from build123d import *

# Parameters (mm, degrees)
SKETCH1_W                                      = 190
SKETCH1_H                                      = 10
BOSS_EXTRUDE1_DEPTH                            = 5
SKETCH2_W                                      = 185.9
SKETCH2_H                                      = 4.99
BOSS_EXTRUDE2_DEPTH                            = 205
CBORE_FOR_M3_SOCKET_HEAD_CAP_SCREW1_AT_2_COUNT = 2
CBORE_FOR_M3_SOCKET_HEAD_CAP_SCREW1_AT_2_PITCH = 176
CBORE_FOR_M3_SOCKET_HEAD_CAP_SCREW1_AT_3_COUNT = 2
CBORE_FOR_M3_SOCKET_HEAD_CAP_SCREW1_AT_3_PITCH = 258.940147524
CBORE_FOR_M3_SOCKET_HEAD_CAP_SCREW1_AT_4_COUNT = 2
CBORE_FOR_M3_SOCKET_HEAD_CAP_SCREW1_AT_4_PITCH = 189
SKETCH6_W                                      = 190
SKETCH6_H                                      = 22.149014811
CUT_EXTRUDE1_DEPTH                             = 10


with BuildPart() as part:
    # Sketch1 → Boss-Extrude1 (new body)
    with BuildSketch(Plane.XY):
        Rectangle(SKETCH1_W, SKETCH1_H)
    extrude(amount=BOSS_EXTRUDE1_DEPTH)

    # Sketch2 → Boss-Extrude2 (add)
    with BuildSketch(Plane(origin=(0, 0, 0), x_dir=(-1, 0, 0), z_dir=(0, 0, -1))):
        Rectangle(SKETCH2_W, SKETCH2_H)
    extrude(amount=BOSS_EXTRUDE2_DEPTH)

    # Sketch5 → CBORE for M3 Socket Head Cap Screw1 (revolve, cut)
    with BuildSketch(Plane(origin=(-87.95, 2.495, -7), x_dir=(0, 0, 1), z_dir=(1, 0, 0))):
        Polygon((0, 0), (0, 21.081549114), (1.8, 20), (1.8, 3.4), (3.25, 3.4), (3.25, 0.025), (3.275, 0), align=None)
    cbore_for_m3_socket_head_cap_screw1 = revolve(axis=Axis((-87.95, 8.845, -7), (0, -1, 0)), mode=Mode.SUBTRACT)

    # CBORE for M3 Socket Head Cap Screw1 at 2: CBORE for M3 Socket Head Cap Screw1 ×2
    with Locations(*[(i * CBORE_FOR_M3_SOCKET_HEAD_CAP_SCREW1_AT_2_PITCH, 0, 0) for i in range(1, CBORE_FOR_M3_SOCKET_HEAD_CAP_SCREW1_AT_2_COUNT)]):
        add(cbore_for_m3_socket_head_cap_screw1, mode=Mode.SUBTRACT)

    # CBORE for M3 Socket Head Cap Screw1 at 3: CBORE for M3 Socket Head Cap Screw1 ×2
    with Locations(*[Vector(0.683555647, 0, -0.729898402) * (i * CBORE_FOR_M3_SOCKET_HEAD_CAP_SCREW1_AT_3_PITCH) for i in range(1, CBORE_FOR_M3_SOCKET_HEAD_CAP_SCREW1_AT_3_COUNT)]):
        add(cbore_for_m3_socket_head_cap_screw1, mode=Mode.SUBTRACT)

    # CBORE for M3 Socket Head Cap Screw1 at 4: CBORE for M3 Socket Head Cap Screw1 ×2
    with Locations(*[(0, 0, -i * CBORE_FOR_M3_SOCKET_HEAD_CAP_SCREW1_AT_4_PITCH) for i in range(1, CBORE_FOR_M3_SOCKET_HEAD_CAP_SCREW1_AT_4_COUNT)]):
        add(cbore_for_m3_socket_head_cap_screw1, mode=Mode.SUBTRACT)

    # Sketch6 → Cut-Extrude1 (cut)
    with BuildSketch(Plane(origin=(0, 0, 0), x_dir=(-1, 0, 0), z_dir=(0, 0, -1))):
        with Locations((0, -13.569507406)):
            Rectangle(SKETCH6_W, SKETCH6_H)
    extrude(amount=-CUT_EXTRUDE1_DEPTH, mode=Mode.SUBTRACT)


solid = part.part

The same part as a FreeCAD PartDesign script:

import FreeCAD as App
import Part
import Sketcher
from FreeCAD import Vector
Q = App.Units.Quantity

doc = App.newDocument("Part")
body = doc.addObject("PartDesign::Body", "Body")

# Sketch on XY plane
sketch1 = body.newObject("Sketcher::SketchObject", "Sketch")
sketch1.AttachmentSupport = (doc.getObject("XY_Plane"), [""])
sketch1.MapMode = "FlatFace"
sketch1.addGeometry([
    Part.LineSegment(Vector(-95, 5, 0), Vector(-95, -5, 0)),
    Part.LineSegment(Vector(-95, -5, 0), Vector(95, -5, 0)),
    Part.LineSegment(Vector(95, -5, 0), Vector(95, 5, 0)),
    Part.LineSegment(Vector(95, 5, 0), Vector(-95, 5, 0)),
], False)
sketch1.addConstraint([
    Sketcher.Constraint("Coincident", 0, 2, 1, 1),
    Sketcher.Constraint("Coincident", 1, 2, 2, 1),
    Sketcher.Constraint("Coincident", 2, 2, 3, 1),
    Sketcher.Constraint("Coincident", 3, 2, 0, 1),
    Sketcher.Constraint("Vertical", 0),
    Sketcher.Constraint("Horizontal", 1),
    Sketcher.Constraint("Vertical", 2),
    Sketcher.Constraint("Horizontal", 3),
    Sketcher.Constraint("Symmetric", 0, 2, 2, 2, -1, 1),
    Sketcher.Constraint("DistanceX", 1, 1, 1, 2, Q("190 mm")),
    Sketcher.Constraint("DistanceY", 0, 2, 0, 1, Q("10 mm")),
])
pad1 = body.newObject("PartDesign::Pad", "Pad")
pad1.Profile = sketch1
pad1.Length = 5

# Sketch on XY plane
sketch2 = body.newObject("Sketcher::SketchObject", "Sketch001")
sketch2.AttachmentSupport = (doc.getObject("XY_Plane"), [""])
sketch2.MapMode = "FlatFace"
sketch2.addGeometry([
    Part.LineSegment(Vector(93, 2.5, 0), Vector(93, -2.5, 0)),
    Part.LineSegment(Vector(93, -2.5, 0), Vector(-93, -2.5, 0)),
    Part.LineSegment(Vector(-93, -2.5, 0), Vector(-93, 2.5, 0)),
    Part.LineSegment(Vector(-93, 2.5, 0), Vector(93, 2.5, 0)),
], False)
sketch2.addConstraint([
    Sketcher.Constraint("Coincident", 0, 2, 1, 1),
    Sketcher.Constraint("Coincident", 1, 2, 2, 1),
    Sketcher.Constraint("Coincident", 2, 2, 3, 1),
    Sketcher.Constraint("Coincident", 3, 2, 0, 1),
    Sketcher.Constraint("Vertical", 0),
    Sketcher.Constraint("Horizontal", 1),
    Sketcher.Constraint("Vertical", 2),
    Sketcher.Constraint("Horizontal", 3),
    Sketcher.Constraint("Symmetric", 0, 2, 2, 2, -1, 1),
    Sketcher.Constraint("DistanceX", 1, 2, 1, 1, Q("185.9 mm")),
    Sketcher.Constraint("DistanceY", 0, 2, 0, 1, Q("4.99 mm")),
])
pad2 = body.newObject("PartDesign::Pad", "Pad001")
pad2.Profile = sketch2
pad2.Length = 205
pad2.Reversed = True

# Sketch on YZ plane
sketch3 = body.newObject("Sketcher::SketchObject", "Sketch002")
sketch3.AttachmentSupport = (doc.getObject("YZ_Plane"), [""])
sketch3.MapMode = "FlatFace"
sketch3.AttachmentOffset = App.Placement(Vector(0, 0, -87.95), App.Rotation())
sketch3.addGeometry([
    Part.LineSegment(Vector(-18.587, -7, 0), Vector(2.495, -7, 0)),  # 0
    Part.LineSegment(Vector(2.495, -7, 0), Vector(2.495, -3.725, 0)),  # 1
    Part.LineSegment(Vector(2.495, -3.725, 0), Vector(2.47, -3.75, 0)),  # 2
    Part.LineSegment(Vector(2.47, -3.75, 0), Vector(-0.905, -3.75, 0)),  # 3
    Part.LineSegment(Vector(-0.905, -3.75, 0), Vector(-0.905, -5.2, 0)),  # 4
    Part.LineSegment(Vector(-0.905, -5.2, 0), Vector(-17.505, -5.2, 0)),  # 5
    Part.LineSegment(Vector(-17.505, -5.2, 0), Vector(-18.587, -7, 0)),  # 6
], False)
sketch3.addGeometry(Part.LineSegment(Vector(2.495, -7, 0), Vector(-18.587, -7, 0)), True)  # axis
sketch3.addConstraint([
    Sketcher.Constraint("Coincident", 0, 2, 1, 1),
    Sketcher.Constraint("Coincident", 1, 2, 2, 1),
    Sketcher.Constraint("Coincident", 2, 2, 3, 1),
    Sketcher.Constraint("Coincident", 3, 2, 4, 1),
    Sketcher.Constraint("Coincident", 4, 2, 5, 1),
    Sketcher.Constraint("Coincident", 5, 2, 6, 1),
    Sketcher.Constraint("Coincident", 6, 2, 0, 1),
    Sketcher.Constraint("Horizontal", 0),
    Sketcher.Constraint("Vertical", 1),
    Sketcher.Constraint("Horizontal", 3),
    Sketcher.Constraint("Vertical", 4),
    Sketcher.Constraint("Horizontal", 5),
    Sketcher.Constraint("Horizontal", 7),
    Sketcher.Constraint("Coincident", 7, 1, 0, 2),
    Sketcher.Constraint("Equal", 0, 7),
    Sketcher.Constraint("Angle", 2, Q("-135 deg")),
    Sketcher.Constraint("Angle", 6, Q("-121 deg")),
    Sketcher.Constraint("DistanceX", 5, 2, 5, 1, Q("16.6 mm")),
    Sketcher.Constraint("DistanceY", 0, 2, -1, 1, Q("7 mm")),
    Sketcher.Constraint("DistanceX", 5, 2, 1, 2, Q("20 mm")),
    Sketcher.Constraint("DistanceY", 4, 2, 4, 1, Q("1.45 mm")),
    Sketcher.Constraint("DistanceY", 4, 2, -1, 1, Q("5.2 mm")),
    Sketcher.Constraint("DistanceX", 3, 2, 3, 1, Q("3.375 mm")),
    Sketcher.Constraint("DistanceX", -1, 1, 2, 2, Q("2.47 mm")),
])
groove = body.newObject("PartDesign::Groove", "Groove")
groove.Profile = sketch3
groove.ReferenceAxis = (sketch3, ["Axis0"])
groove.Angle = 360
doc.recompute()

linearpattern = body.newObject("PartDesign::LinearPattern", "LinearPattern")
linearpattern.Originals = [groove]
linearpattern.Direction = (doc.getObject("X_Axis"), [""])
linearpattern.Mode = "offset"
linearpattern.Offset = 176
linearpattern.Occurrences = 2
body.Tip = linearpattern
doc.recompute()

datumline = body.newObject("PartDesign::Line", "DatumLine")
datumline.Placement = App.Placement(Vector(0, 0, 0), App.Rotation(Vector(0, 0, 1), Vector(0.683555647, 0, -0.729898402)))
linearpattern2 = body.newObject("PartDesign::LinearPattern", "LinearPattern001")
linearpattern2.Originals = [groove]
linearpattern2.Direction = (datumline, [""])
linearpattern2.Mode = "offset"
linearpattern2.Offset = 258.940147
linearpattern2.Occurrences = 2
body.Tip = linearpattern2
doc.recompute()

linearpattern3 = body.newObject("PartDesign::LinearPattern", "LinearPattern002")
linearpattern3.Originals = [groove]
linearpattern3.Direction = (doc.getObject("Z_Axis"), [""])
linearpattern3.Mode = "offset"
linearpattern3.Offset = 189
linearpattern3.Occurrences = 2
linearpattern3.Reversed = True
body.Tip = linearpattern3

# Sketch on XY plane
sketch4 = body.newObject("Sketcher::SketchObject", "Sketch003")
sketch4.AttachmentSupport = (doc.getObject("XY_Plane"), [""])
sketch4.MapMode = "FlatFace"
sketch4.addGeometry([
    Part.LineSegment(Vector(95, -2, 0), Vector(95, -25, 0)),
    Part.LineSegment(Vector(95, -25, 0), Vector(-95, -25, 0)),
    Part.LineSegment(Vector(-95, -25, 0), Vector(-95, -2, 0)),
    Part.LineSegment(Vector(-95, -2, 0), Vector(95, -2, 0)),
], False)
sketch4.addConstraint([
    Sketcher.Constraint("Coincident", 0, 2, 1, 1),
    Sketcher.Constraint("Coincident", 1, 2, 2, 1),
    Sketcher.Constraint("Coincident", 2, 2, 3, 1),
    Sketcher.Constraint("Coincident", 3, 2, 0, 1),
    Sketcher.Constraint("Vertical", 0),
    Sketcher.Constraint("Horizontal", 1),
    Sketcher.Constraint("Vertical", 2),
    Sketcher.Constraint("Horizontal", 3),
    Sketcher.Constraint("DistanceX", 1, 2, 1, 1, Q("190 mm")),
    Sketcher.Constraint("DistanceX", -1, 1, 0, 2, Q("95 mm")),
    Sketcher.Constraint("DistanceY", 2, 2, -1, 1, Q("2.495 mm")),
    Sketcher.Constraint("DistanceY", 0, 2, 0, 1, Q("22.149015 mm")),
])
pocket1 = body.newObject("PartDesign::Pocket", "Pocket")
pocket1.Profile = sketch4
pocket1.Length = 10
pocket1.Reversed = True

doc.recompute()
